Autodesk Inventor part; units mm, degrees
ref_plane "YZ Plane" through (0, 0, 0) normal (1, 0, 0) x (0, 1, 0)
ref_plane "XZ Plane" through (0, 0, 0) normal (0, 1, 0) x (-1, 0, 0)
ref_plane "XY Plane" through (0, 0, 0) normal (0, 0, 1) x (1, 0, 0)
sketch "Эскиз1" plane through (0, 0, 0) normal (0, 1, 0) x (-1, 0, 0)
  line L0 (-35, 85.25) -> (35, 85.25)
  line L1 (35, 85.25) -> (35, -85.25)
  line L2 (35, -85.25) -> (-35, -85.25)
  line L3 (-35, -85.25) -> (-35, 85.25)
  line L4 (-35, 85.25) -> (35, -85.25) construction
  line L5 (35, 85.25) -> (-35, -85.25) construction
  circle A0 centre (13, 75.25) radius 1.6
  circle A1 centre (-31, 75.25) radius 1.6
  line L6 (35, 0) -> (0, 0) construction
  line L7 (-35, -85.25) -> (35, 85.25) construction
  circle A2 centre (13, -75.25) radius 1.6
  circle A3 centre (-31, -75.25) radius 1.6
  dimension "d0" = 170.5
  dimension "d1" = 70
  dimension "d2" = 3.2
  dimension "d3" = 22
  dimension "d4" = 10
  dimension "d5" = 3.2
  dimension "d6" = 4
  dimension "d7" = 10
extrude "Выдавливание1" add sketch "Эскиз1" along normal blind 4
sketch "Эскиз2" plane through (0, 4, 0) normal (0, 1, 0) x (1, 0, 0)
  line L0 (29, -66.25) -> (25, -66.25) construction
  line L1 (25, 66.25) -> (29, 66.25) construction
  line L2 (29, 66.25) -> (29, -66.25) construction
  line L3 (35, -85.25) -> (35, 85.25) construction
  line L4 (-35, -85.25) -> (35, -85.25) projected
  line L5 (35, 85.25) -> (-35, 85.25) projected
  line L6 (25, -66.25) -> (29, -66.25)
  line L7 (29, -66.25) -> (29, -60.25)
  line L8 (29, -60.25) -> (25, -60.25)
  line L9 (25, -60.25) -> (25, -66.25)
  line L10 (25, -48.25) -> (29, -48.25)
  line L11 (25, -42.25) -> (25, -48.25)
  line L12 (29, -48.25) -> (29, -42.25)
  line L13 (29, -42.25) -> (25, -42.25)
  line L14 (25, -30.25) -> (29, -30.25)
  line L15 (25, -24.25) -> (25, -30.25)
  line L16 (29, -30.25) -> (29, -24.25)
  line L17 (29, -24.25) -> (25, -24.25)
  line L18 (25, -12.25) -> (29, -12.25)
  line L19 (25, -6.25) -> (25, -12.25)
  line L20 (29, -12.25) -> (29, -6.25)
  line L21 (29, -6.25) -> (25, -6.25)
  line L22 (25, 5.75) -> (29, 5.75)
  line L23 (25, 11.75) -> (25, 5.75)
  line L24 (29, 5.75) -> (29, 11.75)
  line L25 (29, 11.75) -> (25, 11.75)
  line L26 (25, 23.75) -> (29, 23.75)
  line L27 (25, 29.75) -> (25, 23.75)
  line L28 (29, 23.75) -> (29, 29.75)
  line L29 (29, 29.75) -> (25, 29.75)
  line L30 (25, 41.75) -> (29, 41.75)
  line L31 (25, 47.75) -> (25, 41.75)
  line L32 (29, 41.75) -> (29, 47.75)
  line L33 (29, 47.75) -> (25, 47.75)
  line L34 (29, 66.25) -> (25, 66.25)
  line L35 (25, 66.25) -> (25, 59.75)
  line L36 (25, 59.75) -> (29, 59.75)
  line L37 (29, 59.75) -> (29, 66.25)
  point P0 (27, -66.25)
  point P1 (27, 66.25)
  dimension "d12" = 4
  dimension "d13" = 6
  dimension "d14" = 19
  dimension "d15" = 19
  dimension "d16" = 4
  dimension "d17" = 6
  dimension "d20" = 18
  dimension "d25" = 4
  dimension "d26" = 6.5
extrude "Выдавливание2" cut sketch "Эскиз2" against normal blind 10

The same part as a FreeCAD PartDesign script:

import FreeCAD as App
import Part
import Sketcher
Q = App.Units.Quantity


def add_polygon(sketch, points):
    """Adds a closed chain of lines whose ends are joined by coincident constraints."""
    first, n = sketch.GeometryCount, len(points)
    for a, b in zip(points, points[1:] + points[:1]):
        sketch.addGeometry(Part.LineSegment(App.Vector(*a, 0), App.Vector(*b, 0)), False)
    for i in range(n):
        sketch.addConstraint(Sketcher.Constraint("Coincident", first + i, 2, first + (i + 1) % n, 1))

doc = App.newDocument("Part")
body = doc.addObject("PartDesign::Body", "Body")

# Sketch on XZ plane
sketch1 = body.newObject("Sketcher::SketchObject", "Sketch")
sketch1.AttachmentSupport = (doc.getObject("XZ_Plane"), [""])
sketch1.MapMode = "FlatFace"
add_polygon(sketch1, [(-35, 85.2), (35, 85.2), (35, -85.2), (-35, -85.2)])  # lines 0-3
sketch1.addGeometry(Part.Circle(App.Vector(31, -75.2, 0), App.Vector(0, 0, 1), 1.6), False)  # 4
sketch1.addGeometry(Part.Circle(App.Vector(-13, -75.2, 0), App.Vector(0, 0, 1), 1.6), False)  # 5
sketch1.addGeometry(Part.Circle(App.Vector(31, 75.2, 0), App.Vector(0, 0, 1), 1.6), False)  # 6
sketch1.addGeometry(Part.Circle(App.Vector(-13, 75.2, 0), App.Vector(0, 0, 1), 1.6), False)  # 7
sketch1.addConstraint([
    Sketcher.Constraint("Horizontal", 0),
    Sketcher.Constraint("Vertical", 1),
    Sketcher.Constraint("Horizontal", 2),
    Sketcher.Constraint("Vertical", 3),
    Sketcher.Constraint("Equal", 4, 5),
    Sketcher.Constraint("Equal", 5, 6),
    Sketcher.Constraint("Equal", 6, 7),
    Sketcher.Constraint("Symmetric", 0, 2, 2, 2, -1, 1),
    Sketcher.Constraint("Symmetric", 4, 3, 6, 3, -1),
    Sketcher.Constraint("Symmetric", 5, 3, 7, 3, -1),
    Sketcher.Constraint("Horizontal", 4, 3, 5, 3),
    Sketcher.Constraint("Diameter", 4, Q("3.2 mm")),
    Sketcher.Constraint("DistanceX", 0, 1, 0, 2, Q("70 mm")),
    Sketcher.Constraint("DistanceY", 1, 2, 1, 1, Q("170.5 mm")),
    Sketcher.Constraint("DistanceX", 6, 3, 0, 2, Q("4 mm")),
    Sketcher.Constraint("DistanceY", 6, 3, 0, 2, Q("10 mm")),
    Sketcher.Constraint("DistanceX", 2, 2, 5, 3, Q("22 mm")),
])
pad1 = body.newObject("PartDesign::Pad", "Pad")
pad1.Profile = sketch1
pad1.Length = 4
pad1.Reversed = True

# Sketch on XZ plane
sketch2 = body.newObject("Sketcher::SketchObject", "Sketch001")
sketch2.AttachmentSupport = (doc.getObject("XZ_Plane"), [""])
sketch2.MapMode = "FlatFace"
sketch2.AttachmentOffset = App.Placement(App.Vector(0, 0, -4), App.Rotation())
add_polygon(sketch2, [(25, 60.2), (25, 66.2), (29, 66.2), (29, 60.2)])  # lines 0-3
add_polygon(sketch2, [(25, 42.2), (25, 48.2), (29, 48.2), (29, 42.2)])  # lines 4-7
add_polygon(sketch2, [(25, 24.2), (25, 30.2), (29, 30.2), (29, 24.2)])  # lines 8-11
add_polygon(sketch2, [(25, 6.2), (25, 12.2), (29, 12.2), (29, 6.2)])  # lines 12-15
add_polygon(sketch2, [(25, -11.8), (25, -5.8), (29, -5.8), (29, -11.8)])  # lines 16-19
add_polygon(sketch2, [(25, -29.8), (25, -23.8), (29, -23.8), (29, -29.8)])  # lines 20-23
add_polygon(sketch2, [(25, -47.8), (25, -41.8), (29, -41.8), (29, -47.8)])  # lines 24-27
add_polygon(sketch2, [(29, -59.8), (29, -66.2), (25, -66.2), (25, -59.8)])  # lines 28-31
sketch2.addConstraint([
    Sketcher.Constraint("Vertical", 0),
    Sketcher.Constraint("Horizontal", 1),
    Sketcher.Constraint("Vertical", 2),
    Sketcher.Constraint("Horizontal", 3),
    Sketcher.Constraint("Vertical", 4),
    Sketcher.Constraint("Horizontal", 5),
    Sketcher.Constraint("Vertical", 6),
    Sketcher.Constraint("Horizontal", 7),
    Sketcher.Constraint("Vertical", 8),
    Sketcher.Constraint("Horizontal", 9),
    Sketcher.Constraint("Vertical", 10),
    Sketcher.Constraint("Horizontal", 11),
    Sketcher.Constraint("Vertical", 12),
    Sketcher.Constraint("Horizontal", 13),
    Sketcher.Constraint("Vertical", 14),
    Sketcher.Constraint("Horizontal", 15),
    Sketcher.Constraint("Vertical", 16),
    Sketcher.Constraint("Horizontal", 17),
    Sketcher.Constraint("Vertical", 18),
    Sketcher.Constraint("Horizontal", 19),
    Sketcher.Constraint("Vertical", 20),
    Sketcher.Constraint("Horizontal", 21),
    Sketcher.Constraint("Vertical", 22),
    Sketcher.Constraint("Horizontal", 23),
    Sketcher.Constraint("Vertical", 24),
    Sketcher.Constraint("Horizontal", 25),
    Sketcher.Constraint("Vertical", 26),
    Sketcher.Constraint("Horizontal", 27),
    Sketcher.Constraint("Vertical", 28),
    Sketcher.Constraint("Horizontal", 29),
    Sketcher.Constraint("Vertical", 30),
    Sketcher.Constraint("Horizontal", 31),
    Sketcher.Constraint("Symmetric", 1, 2, 28, 2, -1),
    Sketcher.Constraint("Vertical", 3, 2, 4, 2),
    Sketcher.Constraint("Vertical", 2, 2, 5, 2),
    Sketcher.Constraint("Vertical", 7, 2, 8, 2),
    Sketcher.Constraint("Vertical", 6, 2, 9, 2),
    Sketcher.Constraint("Vertical", 11, 2, 12, 2),
    Sketcher.Constraint("Vertical", 10, 2, 13, 2),
    Sketcher.Constraint("Vertical", 15, 2, 16, 2),
    Sketcher.Constraint("Vertical", 14, 2, 17, 2),
    Sketcher.Constraint("Vertical", 19, 2, 20, 2),
    Sketcher.Constraint("Vertical", 18, 2, 21, 2),
    Sketcher.Constraint("Vertical", 23, 2, 24, 2),
    Sketcher.Constraint("Vertical", 22, 2, 25, 2),
    Sketcher.Constraint("Vertical", 27, 2, 29, 2),
    Sketcher.Constraint("Equal", 2, 4),
    Sketcher.Constraint("Equal", 6, 8),
    Sketcher.Constraint("Equal", 10, 12),
    Sketcher.Constraint("Equal", 14, 16),
    Sketcher.Constraint("Equal", 18, 20),
    Sketcher.Constraint("Equal", 22, 24),
    Sketcher.Constraint("DistanceX", 1, 1, 1, 2, Q("4 mm")),
    Sketcher.Constraint("DistanceY", 0, 1, 0, 2, Q("6 mm")),
    Sketcher.Constraint("DistanceY", 28, 2, 28, 1, Q("6.5 mm")),
    Sketcher.Constraint("DistanceY", 4, 2, 0, 2, Q("18 mm")),
    Sketcher.Constraint("DistanceY", 8, 2, 4, 2, Q("18 mm")),
    Sketcher.Constraint("DistanceY", 12, 2, 8, 2, Q("18 mm")),
    Sketcher.Constraint("DistanceY", 16, 2, 12, 2, Q("18 mm")),
    Sketcher.Constraint("DistanceY", 20, 2, 16, 2, Q("18 mm")),
    Sketcher.Constraint("DistanceY", 24, 2, 20, 2, Q("18 mm")),
    Sketcher.Constraint("DistanceY", 30, 2, 24, 2, Q("18 mm")),
    Sketcher.Constraint("DistanceX", -1, 1, 0, 2, Q("25 mm")),
])
pocket1 = body.newObject("PartDesign::Pocket", "Pocket")
pocket1.Profile = sketch2
pocket1.Length = 10
pocket1.Reversed = True

doc.recompute()
